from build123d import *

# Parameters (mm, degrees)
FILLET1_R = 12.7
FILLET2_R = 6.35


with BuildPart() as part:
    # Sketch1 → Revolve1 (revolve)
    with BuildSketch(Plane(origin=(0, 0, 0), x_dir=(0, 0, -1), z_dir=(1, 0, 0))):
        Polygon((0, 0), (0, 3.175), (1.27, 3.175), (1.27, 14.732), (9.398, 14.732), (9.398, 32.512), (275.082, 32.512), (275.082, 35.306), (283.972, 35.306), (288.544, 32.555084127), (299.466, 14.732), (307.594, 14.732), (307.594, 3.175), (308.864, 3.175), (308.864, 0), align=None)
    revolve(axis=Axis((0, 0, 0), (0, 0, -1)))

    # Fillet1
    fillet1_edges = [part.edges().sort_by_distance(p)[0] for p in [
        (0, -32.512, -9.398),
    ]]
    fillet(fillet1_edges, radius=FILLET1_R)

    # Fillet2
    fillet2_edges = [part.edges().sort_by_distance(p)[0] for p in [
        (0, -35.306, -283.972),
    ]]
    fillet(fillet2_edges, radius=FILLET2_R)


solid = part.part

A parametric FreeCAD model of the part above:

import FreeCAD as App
import Part
import Sketcher

V = App.Vector
Q = App.Units.Quantity


def edges_at(feature, points):
    """Names of the edges that pass closest to the given points."""
    edges = feature.Shape.Edges
    near = lambda p: min(range(len(edges)), key=lambda i: edges[i].distToShape(Part.Vertex(*p))[0])
    return sorted({f"Edge{near(p) + 1}" for p in points})

doc = App.newDocument("Part")
body = doc.addObject("PartDesign::Body", "Body")

# Sketch on YZ plane
sketch1 = body.newObject("Sketcher::SketchObject", "Sketch")
sketch1.AttachmentSupport = (doc.getObject("YZ_Plane"), [""])
sketch1.MapMode = "FlatFace"
sketch1.addGeometry(Part.LineSegment(V(3.2, 0, 0), V(0, 0, 0)), False)
sketch1.addGeometry(Part.LineSegment(V(0, 0, 0), V(0, -308.9, 0)), False)
sketch1.addGeometry(Part.LineSegment(V(0, -308.9, 0), V(3.2, -308.9, 0)), False)
sketch1.addGeometry(Part.LineSegment(V(3.2, -308.9, 0), V(3.2, -307.6, 0)), False)
sketch1.addGeometry(Part.LineSegment(V(3.2, -307.6, 0), V(14.7, -307.6, 0)), False)
sketch1.addGeometry(Part.LineSegment(V(14.7, -307.6, 0), V(14.7, -299.5, 0)), False)
sketch1.addGeometry(Part.LineSegment(V(14.7, -299.5, 0), V(32.6, -288.5, 0)), False)
sketch1.addGeometry(Part.LineSegment(V(32.6, -288.5, 0), V(35.3, -284, 0)), False)
sketch1.addGeometry(Part.LineSegment(V(35.3, -284, 0), V(35.3, -275.1, 0)), False)
sketch1.addGeometry(Part.LineSegment(V(35.3, -275.1, 0), V(32.5, -275.1, 0)), False)
sketch1.addGeometry(Part.LineSegment(V(32.5, -275.1, 0), V(32.5, -9.4, 0)), False)
sketch1.addGeometry(Part.LineSegment(V(32.5, -9.4, 0), V(14.7, -9.4, 0)), False)
sketch1.addGeometry(Part.LineSegment(V(14.7, -9.4, 0), V(14.7, -1.3, 0)), False)
sketch1.addGeometry(Part.LineSegment(V(14.7, -1.3, 0), V(3.2, -1.3, 0)), False)
sketch1.addGeometry(Part.LineSegment(V(3.2, -1.3, 0), V(3.2, 0, 0)), False)
sketch1.addConstraint(Sketcher.Constraint("Coincident", 0, 2, 1, 1))
sketch1.addConstraint(Sketcher.Constraint("Coincident", 1, 2, 2, 1))
sketch1.addConstraint(Sketcher.Constraint("Coincident", 2, 2, 3, 1))
sketch1.addConstraint(Sketcher.Constraint("Coincident", 3, 2, 4, 1))
sketch1.addConstraint(Sketcher.Constraint("Coincident", 4, 2, 5, 1))
sketch1.addConstraint(Sketcher.Constraint("Coincident", 5, 2, 6, 1))
sketch1.addConstraint(Sketcher.Constraint("Coincident", 6, 2, 7, 1))
sketch1.addConstraint(Sketcher.Constraint("Coincident", 7, 2, 8, 1))
sketch1.addConstraint(Sketcher.Constraint("Coincident", 8, 2, 9, 1))
sketch1.addConstraint(Sketcher.Constraint("Coincident", 9, 2, 10, 1))
sketch1.addConstraint(Sketcher.Constraint("Coincident", 10, 2, 11, 1))
sketch1.addConstraint(Sketcher.Constraint("Coincident", 11, 2, 12, 1))
sketch1.addConstraint(Sketcher.Constraint("Coincident", 12, 2, 13, 1))
sketch1.addConstraint(Sketcher.Constraint("Coincident", 13, 2, 14, 1))
sketch1.addConstraint(Sketcher.Constraint("Coincident", 14, 2, 0, 1))
sketch1.addConstraint(Sketcher.Constraint("Horizontal", 0))
sketch1.addConstraint(Sketcher.Constraint("Vertical", 1))
sketch1.addConstraint(Sketcher.Constraint("Horizontal", 2))
sketch1.addConstraint(Sketcher.Constraint("Vertical", 3))
sketch1.addConstraint(Sketcher.Constraint("Horizontal", 4))
sketch1.addConstraint(Sketcher.Constraint("Vertical", 5))
sketch1.addConstraint(Sketcher.Constraint("Vertical", 8))
sketch1.addConstraint(Sketcher.Constraint("Horizontal", 9))
sketch1.addConstraint(Sketcher.Constraint("Vertical", 10))
sketch1.addConstraint(Sketcher.Constraint("Horizontal", 11))
sketch1.addConstraint(Sketcher.Constraint("Vertical", 12))
sketch1.addConstraint(Sketcher.Constraint("Horizontal", 13))
sketch1.addConstraint(Sketcher.Constraint("Vertical", 14))
sketch1.addConstraint(Sketcher.Constraint("Coincident", 0, 2, -1, 1))
sketch1.addConstraint(Sketcher.Constraint("Vertical", 5, 2, 11, 2))
sketch1.addConstraint(Sketcher.Constraint("Vertical", 3, 2, 13, 2))
sketch1.addConstraint(Sketcher.Constraint("Equal", 5, 12))
sketch1.addConstraint(Sketcher.Constraint("Equal", 3, 14))
sketch1.addConstraint(Sketcher.Constraint("DistanceX", 11, 2, 11, 1, Q("0.7 in")))
sketch1.addConstraint(Sketcher.Constraint("DistanceX", 9, 2, 9, 1, Q("0.11 in")))
sketch1.addConstraint(Sketcher.Constraint("DistanceY", 1, 2, 1, 1, Q("12.16 in")))
sketch1.addConstraint(Sketcher.Constraint("DistanceY", 3, 1, 3, 2, Q("0.05 in")))
sketch1.addConstraint(Sketcher.Constraint("DistanceY", 5, 1, 5, 2, Q("0.32 in")))
sketch1.addConstraint(Sketcher.Constraint("DistanceY", 8, 1, 8, 2, Q("0.35 in")))
sketch1.addConstraint(Sketcher.Constraint("DistanceY", 10, 1, 10, 2, Q("10.46 in")))
sketch1.addConstraint(Sketcher.Constraint("Angle", 6, Q("31.5 deg")))
sketch1.addConstraint(Sketcher.Constraint("DistanceY", 2, 2, 6, 2, Q("0.8 in")))
sketch1.addConstraint(Sketcher.Constraint("DistanceX", 0, 2, 0, 1, Q("0.125 in")))
sketch1.addConstraint(Sketcher.Constraint("DistanceX", 4, 1, 4, 2, Q("0.455 in")))
revolution = body.newObject("PartDesign::Revolution", "Revolution")
revolution.Profile = sketch1
revolution.ReferenceAxis = (sketch1, ["V_Axis"])
revolution.Angle = 360
doc.recompute()

fillet = body.newObject("PartDesign::Fillet", "Fillet")
fillet.Base = (revolution, edges_at(revolution, [(0, -32.512, -9.398)]))
fillet.Radius = Q("0.5 in")
doc.recompute()

fillet2 = body.newObject("PartDesign::Fillet", "Fillet001")
fillet2.Base = (fillet, edges_at(fillet, [(0, -35.306, -283.972)]))
fillet2.Radius = Q("0.25 in")

doc.recompute()
